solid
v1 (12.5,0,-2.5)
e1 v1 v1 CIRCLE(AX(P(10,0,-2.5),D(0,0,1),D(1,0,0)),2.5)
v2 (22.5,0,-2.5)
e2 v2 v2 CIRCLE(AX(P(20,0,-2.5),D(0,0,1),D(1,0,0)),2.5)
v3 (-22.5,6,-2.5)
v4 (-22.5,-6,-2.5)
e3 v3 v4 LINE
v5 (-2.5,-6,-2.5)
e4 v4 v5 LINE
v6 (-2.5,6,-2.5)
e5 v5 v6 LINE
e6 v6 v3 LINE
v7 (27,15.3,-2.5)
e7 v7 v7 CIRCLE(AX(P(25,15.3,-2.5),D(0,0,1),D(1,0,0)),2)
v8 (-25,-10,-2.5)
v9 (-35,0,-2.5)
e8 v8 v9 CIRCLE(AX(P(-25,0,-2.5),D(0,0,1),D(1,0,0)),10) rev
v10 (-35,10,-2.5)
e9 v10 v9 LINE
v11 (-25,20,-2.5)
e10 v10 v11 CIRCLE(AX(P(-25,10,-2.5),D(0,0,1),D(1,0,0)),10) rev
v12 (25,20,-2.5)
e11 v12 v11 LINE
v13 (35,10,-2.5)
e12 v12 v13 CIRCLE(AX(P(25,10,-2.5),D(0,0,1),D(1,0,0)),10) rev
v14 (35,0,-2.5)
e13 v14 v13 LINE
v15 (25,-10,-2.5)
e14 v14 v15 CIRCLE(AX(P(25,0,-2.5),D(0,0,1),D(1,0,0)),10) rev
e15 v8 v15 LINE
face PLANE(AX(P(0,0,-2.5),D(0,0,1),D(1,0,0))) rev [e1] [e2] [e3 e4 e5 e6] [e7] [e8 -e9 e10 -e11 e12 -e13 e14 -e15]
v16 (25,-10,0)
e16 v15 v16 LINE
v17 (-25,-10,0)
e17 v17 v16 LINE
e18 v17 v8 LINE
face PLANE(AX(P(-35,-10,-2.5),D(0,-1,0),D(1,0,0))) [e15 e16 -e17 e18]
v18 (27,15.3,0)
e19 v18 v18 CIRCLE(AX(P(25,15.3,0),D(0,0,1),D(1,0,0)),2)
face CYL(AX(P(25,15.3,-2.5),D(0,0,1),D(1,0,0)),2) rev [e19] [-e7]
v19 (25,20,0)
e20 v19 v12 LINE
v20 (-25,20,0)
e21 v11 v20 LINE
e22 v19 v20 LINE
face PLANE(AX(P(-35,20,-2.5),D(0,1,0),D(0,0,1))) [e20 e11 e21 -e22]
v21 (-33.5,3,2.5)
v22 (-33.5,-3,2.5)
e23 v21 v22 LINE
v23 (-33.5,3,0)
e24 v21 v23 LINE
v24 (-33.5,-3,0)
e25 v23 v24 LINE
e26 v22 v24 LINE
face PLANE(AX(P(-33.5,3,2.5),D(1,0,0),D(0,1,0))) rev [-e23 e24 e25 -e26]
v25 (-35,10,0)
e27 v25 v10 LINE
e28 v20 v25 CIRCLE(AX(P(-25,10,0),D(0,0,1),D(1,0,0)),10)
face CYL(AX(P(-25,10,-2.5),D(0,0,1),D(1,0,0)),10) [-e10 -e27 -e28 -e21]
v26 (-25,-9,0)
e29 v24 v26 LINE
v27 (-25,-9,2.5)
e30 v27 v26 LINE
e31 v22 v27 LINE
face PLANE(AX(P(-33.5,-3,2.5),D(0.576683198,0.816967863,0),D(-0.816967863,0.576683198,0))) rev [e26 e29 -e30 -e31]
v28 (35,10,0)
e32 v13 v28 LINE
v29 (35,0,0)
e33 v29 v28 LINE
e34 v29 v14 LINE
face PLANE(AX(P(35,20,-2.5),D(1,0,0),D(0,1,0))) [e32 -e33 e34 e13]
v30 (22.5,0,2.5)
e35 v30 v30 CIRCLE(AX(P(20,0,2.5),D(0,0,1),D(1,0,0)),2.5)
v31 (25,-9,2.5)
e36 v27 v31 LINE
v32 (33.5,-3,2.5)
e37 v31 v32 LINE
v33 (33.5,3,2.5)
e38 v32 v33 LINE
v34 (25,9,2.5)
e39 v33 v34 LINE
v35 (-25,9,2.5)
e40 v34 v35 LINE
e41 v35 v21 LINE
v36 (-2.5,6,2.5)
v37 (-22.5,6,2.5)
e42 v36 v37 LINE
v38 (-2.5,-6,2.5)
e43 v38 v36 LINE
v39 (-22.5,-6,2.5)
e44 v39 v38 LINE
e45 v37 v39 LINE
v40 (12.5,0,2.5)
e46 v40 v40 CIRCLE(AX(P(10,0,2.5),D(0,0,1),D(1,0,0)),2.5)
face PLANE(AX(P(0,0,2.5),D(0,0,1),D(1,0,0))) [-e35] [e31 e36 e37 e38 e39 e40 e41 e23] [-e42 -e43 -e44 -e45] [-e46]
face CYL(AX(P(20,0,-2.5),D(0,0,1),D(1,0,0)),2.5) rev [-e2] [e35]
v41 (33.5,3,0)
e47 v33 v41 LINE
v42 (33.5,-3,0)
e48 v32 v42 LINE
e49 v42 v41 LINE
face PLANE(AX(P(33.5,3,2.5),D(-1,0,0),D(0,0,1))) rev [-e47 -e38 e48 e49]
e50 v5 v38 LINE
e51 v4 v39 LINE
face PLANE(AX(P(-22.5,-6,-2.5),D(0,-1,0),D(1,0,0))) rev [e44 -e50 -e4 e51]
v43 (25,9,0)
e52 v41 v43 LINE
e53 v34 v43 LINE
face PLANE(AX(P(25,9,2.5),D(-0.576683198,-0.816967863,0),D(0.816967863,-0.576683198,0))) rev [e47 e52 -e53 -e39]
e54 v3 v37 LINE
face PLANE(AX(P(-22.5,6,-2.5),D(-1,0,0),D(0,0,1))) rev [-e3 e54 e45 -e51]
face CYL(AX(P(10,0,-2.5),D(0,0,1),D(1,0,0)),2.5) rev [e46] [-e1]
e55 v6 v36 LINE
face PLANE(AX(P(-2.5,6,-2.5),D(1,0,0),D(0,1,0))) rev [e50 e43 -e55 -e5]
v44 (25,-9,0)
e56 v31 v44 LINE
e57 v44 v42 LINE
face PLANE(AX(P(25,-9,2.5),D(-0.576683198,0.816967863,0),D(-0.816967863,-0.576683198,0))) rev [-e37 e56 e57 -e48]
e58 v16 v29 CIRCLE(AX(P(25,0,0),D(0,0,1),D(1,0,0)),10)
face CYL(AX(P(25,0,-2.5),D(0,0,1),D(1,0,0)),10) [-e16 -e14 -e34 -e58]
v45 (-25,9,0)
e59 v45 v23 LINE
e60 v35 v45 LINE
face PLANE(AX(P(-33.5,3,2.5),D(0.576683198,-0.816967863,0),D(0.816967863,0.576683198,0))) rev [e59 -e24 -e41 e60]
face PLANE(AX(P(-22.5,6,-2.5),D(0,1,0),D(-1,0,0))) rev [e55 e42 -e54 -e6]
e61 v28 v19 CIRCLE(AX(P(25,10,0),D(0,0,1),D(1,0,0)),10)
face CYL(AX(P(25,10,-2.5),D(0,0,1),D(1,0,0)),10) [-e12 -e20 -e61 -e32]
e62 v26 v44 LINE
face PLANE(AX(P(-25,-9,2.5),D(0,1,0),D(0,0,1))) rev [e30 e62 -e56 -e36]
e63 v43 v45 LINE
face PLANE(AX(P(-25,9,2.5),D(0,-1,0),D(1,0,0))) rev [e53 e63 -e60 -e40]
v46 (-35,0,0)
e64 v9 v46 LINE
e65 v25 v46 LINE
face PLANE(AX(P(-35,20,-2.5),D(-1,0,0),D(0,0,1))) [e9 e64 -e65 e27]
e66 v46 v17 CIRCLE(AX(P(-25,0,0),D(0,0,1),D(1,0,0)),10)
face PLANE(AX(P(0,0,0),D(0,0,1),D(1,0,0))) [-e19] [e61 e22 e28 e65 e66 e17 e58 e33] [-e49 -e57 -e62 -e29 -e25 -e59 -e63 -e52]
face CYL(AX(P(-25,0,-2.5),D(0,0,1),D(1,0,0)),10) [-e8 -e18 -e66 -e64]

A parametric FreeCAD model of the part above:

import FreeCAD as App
import Part
import Sketcher
from FreeCAD import Vector
Q = App.Units.Quantity


def edges_at(feature, points):
    """Names of the edges that pass closest to the given points."""
    edges = feature.Shape.Edges
    near = lambda p: min(range(len(edges)), key=lambda i: edges[i].distToShape(Part.Vertex(*p))[0])
    return sorted({f"Edge{near(p) + 1}" for p in points})

doc = App.newDocument("Part")
body = doc.addObject("PartDesign::Body", "Body")

sketch1 = body.newObject("Sketcher::SketchObject", "Sketch")
sketch1.AttachmentSupport = (doc.getObject("XY_Plane"), [""])
sketch1.MapMode = "FlatFace"
sketch1.addGeometry([
    Part.LineSegment(Vector(-25, 9, 0), Vector(-34, 3, 0)),
    Part.LineSegment(Vector(-34, 3, 0), Vector(-34, -3, 0)),
    Part.LineSegment(Vector(-34, -3, 0), Vector(-25, -9, 0)),
    Part.LineSegment(Vector(-25, -9, 0), Vector(25, -9, 0)),
    Part.LineSegment(Vector(25, -9, 0), Vector(34, -3, 0)),
    Part.LineSegment(Vector(34, -3, 0), Vector(34, 3, 0)),
    Part.LineSegment(Vector(34, 3, 0), Vector(25, 9, 0)),
    Part.LineSegment(Vector(25, 9, 0), Vector(-25, 9, 0)),
], False)
sketch1.addConstraint([
    Sketcher.Constraint("Coincident", 0, 2, 1, 1),
    Sketcher.Constraint("Coincident", 1, 2, 2, 1),
    Sketcher.Constraint("Coincident", 2, 2, 3, 1),
    Sketcher.Constraint("Coincident", 3, 2, 4, 1),
    Sketcher.Constraint("Coincident", 4, 2, 5, 1),
    Sketcher.Constraint("Coincident", 5, 2, 6, 1),
    Sketcher.Constraint("Coincident", 6, 2, 7, 1),
    Sketcher.Constraint("Coincident", 7, 2, 0, 1),
    Sketcher.Constraint("Vertical", 1),
    Sketcher.Constraint("Horizontal", 3),
    Sketcher.Constraint("Vertical", 5),
    Sketcher.Constraint("Horizontal", 7),
    Sketcher.Constraint("Symmetric", 0, 2, 4, 2, -1, 1),
    Sketcher.Constraint("Symmetric", 2, 2, 6, 2, -1, 1),
    Sketcher.Constraint("Parallel", 0, 4),
    Sketcher.Constraint("Parallel", 2, 6),
    Sketcher.Constraint("Horizontal", 1, 2, 4, 2),
    Sketcher.Constraint("Vertical", 3, 2, 6, 2),
    Sketcher.Constraint("DistanceX", 3, 1, 3, 2, Q("50 mm")),
    Sketcher.Constraint("DistanceY", 1, 2, 1, 1, Q("6 mm")),
    Sketcher.Constraint("DistanceY", 2, 2, -1, 1, Q("9 mm")),
    Sketcher.Constraint("DistanceX", 1, 2, 4, 2, Q("67 mm")),
])
pad1 = body.newObject("PartDesign::Pad", "Pad")
pad1.Profile = sketch1
pad1.Length = 2.5

sketch2 = body.newObject("Sketcher::SketchObject", "Sketch001")
sketch2.AttachmentSupport = (doc.getObject("XY_Plane"), [""])
sketch2.MapMode = "FlatFace"
sketch2.addGeometry([
    Part.LineSegment(Vector(-35, 20, 0), Vector(-35, -10, 0)),
    Part.LineSegment(Vector(-35, -10, 0), Vector(35, -10, 0)),
    Part.LineSegment(Vector(35, -10, 0), Vector(35, 20, 0)),
    Part.LineSegment(Vector(35, 20, 0), Vector(-35, 20, 0)),
], False)
sketch2.addConstraint([
    Sketcher.Constraint("Coincident", 0, 2, 1, 1),
    Sketcher.Constraint("Coincident", 1, 2, 2, 1),
    Sketcher.Constraint("Coincident", 2, 2, 3, 1),
    Sketcher.Constraint("Coincident", 3, 2, 0, 1),
    Sketcher.Constraint("Vertical", 0),
    Sketcher.Constraint("Horizontal", 1),
    Sketcher.Constraint("Vertical", 2),
    Sketcher.Constraint("Horizontal", 3),
    Sketcher.Constraint("DistanceX", 1, 1, 1, 2, Q("70 mm")),
    Sketcher.Constraint("DistanceY", 0, 2, 0, 1, Q("30 mm")),
    Sketcher.Constraint("DistanceX", 0, 2, -1, 1, Q("35 mm")),
    Sketcher.Constraint("DistanceY", 0, 2, -1, 1, Q("10 mm")),
])
pad2 = body.newObject("PartDesign::Pad", "Pad001")
pad2.Profile = sketch2
pad2.Length = 2.5
pad2.Reversed = True

sketch3 = body.newObject("Sketcher::SketchObject", "Sketch002")
sketch3.AttachmentSupport = (doc.getObject("XY_Plane"), [""])
sketch3.MapMode = "FlatFace"
sketch3.addGeometry(Part.Circle(Vector(25, 15.3, 0), Vector(0, 0, 1), 2), False)
sketch3.addConstraint([
    Sketcher.Constraint("Diameter", 0, Q("4 mm")),
    Sketcher.Constraint("DistanceX", -1, 1, 0, 3, Q("25 mm")),
    Sketcher.Constraint("DistanceY", -1, 1, 0, 3, Q("15.3 mm")),
])
pocket1 = body.newObject("PartDesign::Pocket", "Pocket")
pocket1.Profile = sketch3
pocket1.Length = 2.5
doc.recompute()

fillet = body.newObject("PartDesign::Fillet", "Fillet")
fillet.Base = (pocket1, edges_at(pocket1, [
    (35, 20, -1.25),
    (35, -10, -1.25),
    (-35, -10, -1.25),
    (-35, 20, -1.25),
]))
fillet.Radius = 10

sketch4 = body.newObject("Sketcher::SketchObject", "Sketch003")
sketch4.AttachmentSupport = (doc.getObject("XY_Plane"), [""])
sketch4.MapMode = "FlatFace"
sketch4.addGeometry([
    Part.Circle(Vector(10, 0, 0), Vector(0, 0, 1), 2.5),
    Part.Circle(Vector(20, 0, 0), Vector(0, 0, 1), 2.5),
    Part.LineSegment(Vector(-22.5, 6, 0), Vector(-22.5, -6, 0)),
    Part.LineSegment(Vector(-22.5, -6, 0), Vector(-2.5, -6, 0)),
    Part.LineSegment(Vector(-2.5, -6, 0), Vector(-2.5, 6, 0)),
    Part.LineSegment(Vector(-2.5, 6, 0), Vector(-22.5, 6, 0)),
], False)
sketch4.addConstraint([
    Sketcher.Constraint("Coincident", 2, 2, 3, 1),
    Sketcher.Constraint("Coincident", 3, 2, 4, 1),
    Sketcher.Constraint("Coincident", 4, 2, 5, 1),
    Sketcher.Constraint("Coincident", 5, 2, 2, 1),
    Sketcher.Constraint("Vertical", 2),
    Sketcher.Constraint("Horizontal", 3),
    Sketcher.Constraint("Vertical", 4),
    Sketcher.Constraint("Horizontal", 5),
    Sketcher.Constraint("Equal", 0, 1),
    Sketcher.Constraint("PointOnObject", 0, 3, -1),
    Sketcher.Constraint("PointOnObject", 1, 3, -1),
    Sketcher.Constraint("Diameter", 0, Q("5 mm")),
    Sketcher.Constraint("DistanceX", 3, 1, 3, 2, Q("20 mm")),
    Sketcher.Constraint("DistanceY", 2, 2, 2, 1, Q("12 mm")),
    Sketcher.Constraint("DistanceX", -1, 1, 0, 3, Q("10 mm")),
    Sketcher.Constraint("DistanceX", -1, 1, 1, 3, Q("20 mm")),
    Sketcher.Constraint("DistanceY", 2, 2, -1, 1, Q("6 mm")),
    Sketcher.Constraint("DistanceX", 2, 2, -1, 1, Q("22.5 mm")),
])
pocket2 = body.newObject("PartDesign::Pocket", "Pocket001")
pocket2.Profile = sketch4
pocket2.Type = "ThroughAll"
pocket2.Midplane = True

doc.recompute()
